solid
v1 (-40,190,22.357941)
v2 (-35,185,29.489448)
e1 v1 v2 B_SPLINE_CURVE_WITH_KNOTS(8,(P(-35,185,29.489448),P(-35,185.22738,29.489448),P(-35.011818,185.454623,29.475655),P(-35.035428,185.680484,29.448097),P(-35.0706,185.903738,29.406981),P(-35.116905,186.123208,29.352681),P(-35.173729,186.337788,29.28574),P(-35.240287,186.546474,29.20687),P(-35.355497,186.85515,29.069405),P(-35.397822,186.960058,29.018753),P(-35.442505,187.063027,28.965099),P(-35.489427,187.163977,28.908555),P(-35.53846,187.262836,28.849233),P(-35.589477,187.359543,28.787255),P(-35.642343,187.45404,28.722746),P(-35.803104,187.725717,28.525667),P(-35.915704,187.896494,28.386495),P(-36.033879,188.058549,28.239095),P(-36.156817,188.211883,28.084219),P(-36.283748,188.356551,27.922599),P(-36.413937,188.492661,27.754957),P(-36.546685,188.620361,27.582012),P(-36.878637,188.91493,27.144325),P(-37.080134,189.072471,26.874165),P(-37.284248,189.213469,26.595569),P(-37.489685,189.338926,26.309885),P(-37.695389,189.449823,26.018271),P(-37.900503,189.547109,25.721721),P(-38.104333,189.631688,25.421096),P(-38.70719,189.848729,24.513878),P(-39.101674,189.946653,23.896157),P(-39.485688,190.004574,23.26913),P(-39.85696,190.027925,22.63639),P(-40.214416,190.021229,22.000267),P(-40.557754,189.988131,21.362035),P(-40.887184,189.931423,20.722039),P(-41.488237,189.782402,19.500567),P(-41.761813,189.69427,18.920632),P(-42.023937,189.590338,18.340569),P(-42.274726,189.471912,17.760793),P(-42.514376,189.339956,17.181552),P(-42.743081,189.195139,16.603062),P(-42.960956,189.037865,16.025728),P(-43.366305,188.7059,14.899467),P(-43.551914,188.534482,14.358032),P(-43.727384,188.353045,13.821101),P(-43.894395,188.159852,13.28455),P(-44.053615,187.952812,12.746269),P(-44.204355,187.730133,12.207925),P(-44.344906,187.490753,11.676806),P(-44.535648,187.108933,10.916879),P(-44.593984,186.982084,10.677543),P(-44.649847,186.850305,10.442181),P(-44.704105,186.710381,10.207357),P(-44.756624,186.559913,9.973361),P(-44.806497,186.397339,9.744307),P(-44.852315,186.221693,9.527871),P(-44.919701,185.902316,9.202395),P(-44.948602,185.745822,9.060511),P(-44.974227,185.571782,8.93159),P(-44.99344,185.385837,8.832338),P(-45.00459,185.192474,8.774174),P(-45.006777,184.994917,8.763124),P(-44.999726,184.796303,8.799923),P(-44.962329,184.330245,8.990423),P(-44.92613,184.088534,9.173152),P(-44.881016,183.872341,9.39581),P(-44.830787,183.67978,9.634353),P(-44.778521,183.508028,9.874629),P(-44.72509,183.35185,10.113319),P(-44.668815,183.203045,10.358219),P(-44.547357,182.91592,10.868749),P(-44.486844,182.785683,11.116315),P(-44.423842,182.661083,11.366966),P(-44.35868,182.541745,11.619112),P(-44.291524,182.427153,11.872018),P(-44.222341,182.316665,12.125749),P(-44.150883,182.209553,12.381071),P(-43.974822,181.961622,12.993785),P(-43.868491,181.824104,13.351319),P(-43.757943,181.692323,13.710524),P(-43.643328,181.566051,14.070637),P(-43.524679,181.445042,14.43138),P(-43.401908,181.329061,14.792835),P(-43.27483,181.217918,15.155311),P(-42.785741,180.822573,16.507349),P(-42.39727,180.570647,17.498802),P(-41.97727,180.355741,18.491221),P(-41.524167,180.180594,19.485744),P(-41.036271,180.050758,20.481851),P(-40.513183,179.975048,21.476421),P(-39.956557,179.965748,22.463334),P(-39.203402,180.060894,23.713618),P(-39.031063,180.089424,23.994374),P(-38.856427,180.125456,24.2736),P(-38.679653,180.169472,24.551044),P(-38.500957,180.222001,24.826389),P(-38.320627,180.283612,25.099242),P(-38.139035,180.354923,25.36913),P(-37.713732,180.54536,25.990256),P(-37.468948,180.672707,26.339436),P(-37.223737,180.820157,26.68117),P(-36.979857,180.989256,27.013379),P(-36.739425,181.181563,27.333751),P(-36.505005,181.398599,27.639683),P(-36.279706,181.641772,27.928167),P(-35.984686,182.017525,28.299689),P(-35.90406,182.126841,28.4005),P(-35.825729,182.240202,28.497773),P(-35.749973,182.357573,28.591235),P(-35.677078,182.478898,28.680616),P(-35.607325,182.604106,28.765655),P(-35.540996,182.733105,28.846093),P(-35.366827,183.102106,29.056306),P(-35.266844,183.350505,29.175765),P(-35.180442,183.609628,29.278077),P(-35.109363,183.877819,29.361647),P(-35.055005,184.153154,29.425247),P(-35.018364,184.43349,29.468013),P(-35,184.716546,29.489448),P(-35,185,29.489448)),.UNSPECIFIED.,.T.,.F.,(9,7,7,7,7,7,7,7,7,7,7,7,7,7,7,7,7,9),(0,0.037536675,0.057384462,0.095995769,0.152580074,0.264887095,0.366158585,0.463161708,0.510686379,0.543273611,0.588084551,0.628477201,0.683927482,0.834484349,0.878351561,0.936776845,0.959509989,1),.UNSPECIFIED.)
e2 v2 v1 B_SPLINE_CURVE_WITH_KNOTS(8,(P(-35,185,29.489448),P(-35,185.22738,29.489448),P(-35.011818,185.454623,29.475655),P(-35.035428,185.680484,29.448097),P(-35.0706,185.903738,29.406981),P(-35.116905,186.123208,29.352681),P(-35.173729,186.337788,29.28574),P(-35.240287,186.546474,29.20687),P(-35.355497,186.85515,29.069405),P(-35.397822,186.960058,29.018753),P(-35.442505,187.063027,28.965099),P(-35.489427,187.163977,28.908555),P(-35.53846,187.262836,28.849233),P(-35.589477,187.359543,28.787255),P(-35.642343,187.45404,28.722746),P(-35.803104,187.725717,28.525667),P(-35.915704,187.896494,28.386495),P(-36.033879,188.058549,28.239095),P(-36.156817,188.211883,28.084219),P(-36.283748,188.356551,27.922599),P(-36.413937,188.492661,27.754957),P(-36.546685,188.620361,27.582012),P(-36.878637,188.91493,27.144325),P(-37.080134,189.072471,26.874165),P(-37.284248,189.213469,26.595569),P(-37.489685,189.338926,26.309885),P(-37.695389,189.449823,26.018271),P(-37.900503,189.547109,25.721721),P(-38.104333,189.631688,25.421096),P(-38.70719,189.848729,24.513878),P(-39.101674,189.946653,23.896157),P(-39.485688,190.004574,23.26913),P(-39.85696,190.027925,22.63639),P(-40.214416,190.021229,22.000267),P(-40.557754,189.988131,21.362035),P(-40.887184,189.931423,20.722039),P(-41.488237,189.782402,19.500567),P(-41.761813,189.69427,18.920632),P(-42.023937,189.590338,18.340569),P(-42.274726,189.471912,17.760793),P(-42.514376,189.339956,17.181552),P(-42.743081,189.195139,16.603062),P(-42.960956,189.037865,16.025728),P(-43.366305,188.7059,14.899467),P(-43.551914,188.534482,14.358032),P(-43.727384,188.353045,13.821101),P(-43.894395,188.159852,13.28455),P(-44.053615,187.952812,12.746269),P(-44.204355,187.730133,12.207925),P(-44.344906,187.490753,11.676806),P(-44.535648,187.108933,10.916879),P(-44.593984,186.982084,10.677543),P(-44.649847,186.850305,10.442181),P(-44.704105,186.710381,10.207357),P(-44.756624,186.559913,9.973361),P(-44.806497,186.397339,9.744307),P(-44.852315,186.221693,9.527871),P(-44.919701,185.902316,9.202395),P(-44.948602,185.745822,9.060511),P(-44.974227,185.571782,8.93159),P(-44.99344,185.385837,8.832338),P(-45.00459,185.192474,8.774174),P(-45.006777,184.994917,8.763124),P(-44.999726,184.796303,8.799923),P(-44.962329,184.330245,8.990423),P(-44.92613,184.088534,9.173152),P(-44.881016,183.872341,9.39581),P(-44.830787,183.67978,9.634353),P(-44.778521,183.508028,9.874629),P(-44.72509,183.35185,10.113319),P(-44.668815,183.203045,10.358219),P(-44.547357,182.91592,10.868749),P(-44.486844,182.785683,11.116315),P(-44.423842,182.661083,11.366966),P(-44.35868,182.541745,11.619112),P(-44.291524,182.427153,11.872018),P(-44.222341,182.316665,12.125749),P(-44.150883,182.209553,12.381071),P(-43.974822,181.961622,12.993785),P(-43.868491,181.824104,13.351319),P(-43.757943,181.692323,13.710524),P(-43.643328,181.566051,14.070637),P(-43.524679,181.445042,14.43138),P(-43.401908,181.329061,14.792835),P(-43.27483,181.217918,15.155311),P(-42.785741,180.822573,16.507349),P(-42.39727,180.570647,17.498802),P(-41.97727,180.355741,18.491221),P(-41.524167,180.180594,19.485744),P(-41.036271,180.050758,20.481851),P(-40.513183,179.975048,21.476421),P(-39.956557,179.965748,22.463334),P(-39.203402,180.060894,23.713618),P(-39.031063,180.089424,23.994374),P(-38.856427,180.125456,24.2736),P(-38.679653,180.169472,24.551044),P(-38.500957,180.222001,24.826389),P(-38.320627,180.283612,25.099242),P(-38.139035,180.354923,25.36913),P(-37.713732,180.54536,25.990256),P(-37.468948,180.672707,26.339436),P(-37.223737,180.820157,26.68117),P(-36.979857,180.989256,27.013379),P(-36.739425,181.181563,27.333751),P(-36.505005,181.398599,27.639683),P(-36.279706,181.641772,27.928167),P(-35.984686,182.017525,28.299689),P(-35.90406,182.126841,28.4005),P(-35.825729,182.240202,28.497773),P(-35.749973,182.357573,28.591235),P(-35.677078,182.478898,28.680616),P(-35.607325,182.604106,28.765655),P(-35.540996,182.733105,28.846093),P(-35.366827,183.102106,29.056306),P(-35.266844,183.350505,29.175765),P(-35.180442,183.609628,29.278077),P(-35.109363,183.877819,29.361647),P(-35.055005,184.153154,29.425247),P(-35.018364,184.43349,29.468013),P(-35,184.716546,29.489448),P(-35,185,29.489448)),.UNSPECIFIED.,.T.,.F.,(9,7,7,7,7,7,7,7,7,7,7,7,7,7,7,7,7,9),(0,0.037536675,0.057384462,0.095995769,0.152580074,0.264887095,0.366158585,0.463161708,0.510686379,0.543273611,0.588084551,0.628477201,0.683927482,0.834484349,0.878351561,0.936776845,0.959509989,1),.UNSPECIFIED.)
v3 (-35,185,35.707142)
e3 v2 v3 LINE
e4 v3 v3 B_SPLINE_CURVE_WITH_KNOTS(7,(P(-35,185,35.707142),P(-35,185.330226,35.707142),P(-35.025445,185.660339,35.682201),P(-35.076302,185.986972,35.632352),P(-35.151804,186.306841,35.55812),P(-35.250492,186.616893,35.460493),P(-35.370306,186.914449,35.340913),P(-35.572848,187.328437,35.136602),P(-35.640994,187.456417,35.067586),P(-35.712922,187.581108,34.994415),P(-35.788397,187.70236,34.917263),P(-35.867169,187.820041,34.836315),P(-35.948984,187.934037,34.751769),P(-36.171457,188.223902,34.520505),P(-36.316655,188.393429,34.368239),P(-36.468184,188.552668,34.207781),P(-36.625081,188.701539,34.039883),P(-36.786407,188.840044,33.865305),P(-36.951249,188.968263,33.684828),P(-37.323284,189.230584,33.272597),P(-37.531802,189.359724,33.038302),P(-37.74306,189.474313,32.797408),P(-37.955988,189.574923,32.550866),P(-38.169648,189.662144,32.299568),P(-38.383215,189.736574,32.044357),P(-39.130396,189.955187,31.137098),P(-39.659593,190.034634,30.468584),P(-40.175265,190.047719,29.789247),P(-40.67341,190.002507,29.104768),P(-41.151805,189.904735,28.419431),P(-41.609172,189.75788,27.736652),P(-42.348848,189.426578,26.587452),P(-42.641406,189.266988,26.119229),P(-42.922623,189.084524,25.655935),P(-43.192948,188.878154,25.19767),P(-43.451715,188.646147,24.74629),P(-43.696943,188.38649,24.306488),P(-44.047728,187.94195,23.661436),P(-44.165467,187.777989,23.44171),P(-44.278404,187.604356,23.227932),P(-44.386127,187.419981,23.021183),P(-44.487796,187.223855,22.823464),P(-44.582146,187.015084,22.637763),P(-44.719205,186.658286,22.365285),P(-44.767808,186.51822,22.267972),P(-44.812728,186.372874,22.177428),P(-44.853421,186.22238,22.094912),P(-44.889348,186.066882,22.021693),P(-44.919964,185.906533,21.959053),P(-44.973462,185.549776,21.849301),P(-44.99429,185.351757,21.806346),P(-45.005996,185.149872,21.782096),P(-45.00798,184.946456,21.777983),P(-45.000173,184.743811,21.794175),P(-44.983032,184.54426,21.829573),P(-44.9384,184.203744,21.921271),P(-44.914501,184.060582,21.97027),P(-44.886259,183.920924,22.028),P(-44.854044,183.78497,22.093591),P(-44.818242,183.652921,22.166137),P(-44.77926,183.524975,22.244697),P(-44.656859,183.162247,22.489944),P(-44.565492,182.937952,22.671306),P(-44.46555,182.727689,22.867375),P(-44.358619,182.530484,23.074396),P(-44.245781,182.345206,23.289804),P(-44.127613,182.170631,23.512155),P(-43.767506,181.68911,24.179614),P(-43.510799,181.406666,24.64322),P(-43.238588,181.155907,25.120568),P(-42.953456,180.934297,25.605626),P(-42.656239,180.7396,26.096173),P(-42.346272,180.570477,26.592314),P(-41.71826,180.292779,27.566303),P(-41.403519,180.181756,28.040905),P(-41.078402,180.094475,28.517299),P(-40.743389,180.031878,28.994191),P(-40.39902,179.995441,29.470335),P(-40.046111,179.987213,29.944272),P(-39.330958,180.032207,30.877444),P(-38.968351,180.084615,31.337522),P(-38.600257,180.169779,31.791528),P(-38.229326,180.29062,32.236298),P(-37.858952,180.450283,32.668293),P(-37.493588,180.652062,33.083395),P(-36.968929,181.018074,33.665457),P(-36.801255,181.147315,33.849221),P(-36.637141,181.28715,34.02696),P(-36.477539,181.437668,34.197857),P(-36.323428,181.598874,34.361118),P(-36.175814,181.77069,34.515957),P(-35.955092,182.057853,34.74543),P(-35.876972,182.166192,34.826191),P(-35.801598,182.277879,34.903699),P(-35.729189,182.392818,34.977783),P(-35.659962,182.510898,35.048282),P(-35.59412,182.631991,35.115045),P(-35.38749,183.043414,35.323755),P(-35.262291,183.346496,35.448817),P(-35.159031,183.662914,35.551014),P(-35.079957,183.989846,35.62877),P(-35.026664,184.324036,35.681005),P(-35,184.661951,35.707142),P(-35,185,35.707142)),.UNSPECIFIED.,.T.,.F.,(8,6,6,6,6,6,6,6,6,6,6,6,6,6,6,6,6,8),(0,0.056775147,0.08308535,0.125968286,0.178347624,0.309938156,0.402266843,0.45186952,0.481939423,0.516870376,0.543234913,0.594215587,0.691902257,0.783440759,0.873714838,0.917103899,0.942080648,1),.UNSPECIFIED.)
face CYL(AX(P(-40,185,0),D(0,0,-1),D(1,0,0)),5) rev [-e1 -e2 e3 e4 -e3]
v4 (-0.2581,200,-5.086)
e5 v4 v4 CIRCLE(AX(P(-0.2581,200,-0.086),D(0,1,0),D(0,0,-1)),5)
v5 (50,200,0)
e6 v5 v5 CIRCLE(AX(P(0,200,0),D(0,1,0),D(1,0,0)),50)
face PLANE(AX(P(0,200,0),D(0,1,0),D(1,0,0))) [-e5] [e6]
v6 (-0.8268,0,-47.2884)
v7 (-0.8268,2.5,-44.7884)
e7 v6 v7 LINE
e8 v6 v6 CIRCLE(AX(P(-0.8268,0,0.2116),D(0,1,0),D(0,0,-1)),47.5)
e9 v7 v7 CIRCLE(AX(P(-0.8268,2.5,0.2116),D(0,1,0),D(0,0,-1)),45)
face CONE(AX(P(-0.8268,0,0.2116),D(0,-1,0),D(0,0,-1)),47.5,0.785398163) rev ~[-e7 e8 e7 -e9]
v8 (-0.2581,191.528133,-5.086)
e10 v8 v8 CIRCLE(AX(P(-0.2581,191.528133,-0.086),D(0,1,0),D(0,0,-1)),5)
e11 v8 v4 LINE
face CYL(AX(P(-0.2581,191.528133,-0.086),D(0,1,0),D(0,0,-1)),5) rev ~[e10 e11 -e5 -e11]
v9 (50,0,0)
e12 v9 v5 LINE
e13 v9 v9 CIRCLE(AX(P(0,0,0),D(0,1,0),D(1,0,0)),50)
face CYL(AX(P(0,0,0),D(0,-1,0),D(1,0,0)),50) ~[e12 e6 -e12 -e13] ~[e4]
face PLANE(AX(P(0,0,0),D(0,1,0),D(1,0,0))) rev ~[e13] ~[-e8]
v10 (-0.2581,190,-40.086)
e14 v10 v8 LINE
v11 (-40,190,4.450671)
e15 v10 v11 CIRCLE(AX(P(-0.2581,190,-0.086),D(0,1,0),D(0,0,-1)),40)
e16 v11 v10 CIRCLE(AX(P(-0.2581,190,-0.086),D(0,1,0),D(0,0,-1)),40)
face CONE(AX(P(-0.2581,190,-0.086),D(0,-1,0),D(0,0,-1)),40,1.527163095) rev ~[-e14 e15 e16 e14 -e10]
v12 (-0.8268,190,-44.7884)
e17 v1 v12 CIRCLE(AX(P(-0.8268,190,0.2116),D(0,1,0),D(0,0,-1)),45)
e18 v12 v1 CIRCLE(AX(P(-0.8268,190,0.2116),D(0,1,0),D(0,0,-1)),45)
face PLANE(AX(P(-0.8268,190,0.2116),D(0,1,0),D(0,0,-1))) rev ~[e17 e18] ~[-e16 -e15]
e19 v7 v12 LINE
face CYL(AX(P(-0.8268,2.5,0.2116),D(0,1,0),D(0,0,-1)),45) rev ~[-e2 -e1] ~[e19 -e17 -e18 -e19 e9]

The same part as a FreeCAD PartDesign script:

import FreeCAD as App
import Part
import Sketcher
from FreeCAD import Vector

doc = App.newDocument("Part")
body = doc.addObject("PartDesign::Body", "Body")

sketch1 = body.newObject("Sketcher::SketchObject", "Sketch")
sketch1.AttachmentSupport = (doc.getObject("XZ_Plane"), [""])
sketch1.MapMode = "FlatFace"
sketch1.addGeometry(Part.Circle(Vector(0, 0, 0), Vector(0, 0, 1), 50), False)
sketch1.addConstraint([
    Sketcher.Constraint("Coincident", 0, 3, -1, 1),
    Sketcher.Constraint("Diameter", 0, 100.0),
])
pad1 = body.newObject("PartDesign::Pad", "Pad")
pad1.Profile = sketch1
pad1.Length = 200
pad1.Reversed = True

sketch2 = body.newObject("Sketcher::SketchObject", "Sketch001")
sketch2.AttachmentSupport = (doc.getObject("XZ_Plane"), [""])
sketch2.MapMode = "FlatFace"
sketch2.addGeometry(Part.Circle(Vector(-0.8268, 0.2116, 0), Vector(0, 0, 1), 45), False)
sketch2.addConstraint([
    Sketcher.Constraint("Diameter", 0, 90.0),
    Sketcher.Constraint("DistanceX", 0, 3, -1, 1, 0.8268),
    Sketcher.Constraint("DistanceY", -1, 1, 0, 3, 0.2116),
])
doc.recompute()
hole = body.newObject("PartDesign::Hole", "Hole")
hole.Profile = sketch2
hole.ThreadType = "None"
hole.Diameter = 90
hole.DepthType = "Dimension"
hole.Depth = 190
hole.DrillPoint = "Flat"
hole.HoleCutType = "Countersink"
hole.HoleCutDiameter = 95
hole.HoleCutCountersinkAngle = 90

sketch3 = body.newObject("Sketcher::SketchObject", "Sketch002")
sketch3.AttachmentSupport = (doc.getObject("XY_Plane"), [""])
sketch3.MapMode = "FlatFace"
sketch3.addGeometry(Part.Circle(Vector(-40, 185, 0), Vector(0, 0, 1), 5), False)
sketch3.addConstraint([
    Sketcher.Constraint("Diameter", 0, 10.0),
    Sketcher.Constraint("DistanceX", 0, 3, -1, 1, 40.0),
    Sketcher.Constraint("DistanceY", -1, 1, 0, 3, 185.0),
])
pocket1 = body.newObject("PartDesign::Pocket", "Pocket")
pocket1.Profile = sketch3
pocket1.Length = 60
pocket1.Reversed = True

sketch4 = body.newObject("Sketcher::SketchObject", "Sketch003")
sketch4.AttachmentSupport = (doc.getObject("XZ_Plane"), [""])
sketch4.MapMode = "FlatFace"
sketch4.AttachmentOffset = App.Placement(Vector(0, 0, -190), App.Rotation())
sketch4.addGeometry(Part.Circle(Vector(-0.2581, -0.086, 0), Vector(0, 0, 1), 5), False)
sketch4.addConstraint([
    Sketcher.Constraint("Diameter", 0, 10.0),
    Sketcher.Constraint("DistanceX", 0, 3, -1, 1, 0.258),
    Sketcher.Constraint("DistanceY", 0, 3, -1, 1, 0.086),
])
doc.recompute()
hole2 = body.newObject("PartDesign::Hole", "Hole001")
hole2.Profile = sketch4
hole2.ThreadType = "None"
hole2.Diameter = 10
hole2.DepthType = "Dimension"
hole2.Depth = 4411.663
hole2.DrillPoint = "Flat"
hole2.HoleCutType = "Countersink"
hole2.HoleCutDiameter = 80
hole2.HoleCutCountersinkAngle = 175

doc.recompute()
